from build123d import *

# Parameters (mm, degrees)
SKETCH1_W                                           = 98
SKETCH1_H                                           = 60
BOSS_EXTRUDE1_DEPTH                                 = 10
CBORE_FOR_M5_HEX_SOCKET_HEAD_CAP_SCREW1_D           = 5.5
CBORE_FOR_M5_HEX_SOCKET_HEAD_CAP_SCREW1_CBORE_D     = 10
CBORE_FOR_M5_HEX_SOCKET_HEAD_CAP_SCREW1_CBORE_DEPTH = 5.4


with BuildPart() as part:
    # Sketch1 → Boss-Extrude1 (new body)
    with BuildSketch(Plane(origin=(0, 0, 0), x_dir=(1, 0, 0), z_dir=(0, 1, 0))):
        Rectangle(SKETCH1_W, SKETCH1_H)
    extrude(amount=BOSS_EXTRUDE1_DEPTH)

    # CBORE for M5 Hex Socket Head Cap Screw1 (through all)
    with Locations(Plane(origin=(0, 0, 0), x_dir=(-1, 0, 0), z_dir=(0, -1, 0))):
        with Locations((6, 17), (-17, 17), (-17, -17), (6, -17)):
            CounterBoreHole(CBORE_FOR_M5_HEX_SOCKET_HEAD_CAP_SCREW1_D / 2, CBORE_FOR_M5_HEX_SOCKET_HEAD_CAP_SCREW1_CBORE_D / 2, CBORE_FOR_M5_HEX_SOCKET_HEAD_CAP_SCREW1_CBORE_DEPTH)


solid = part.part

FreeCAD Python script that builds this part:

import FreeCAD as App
import Part
import Sketcher
Q = App.Units.Quantity


def add_polygon(sketch, points):
    """Adds a closed chain of lines whose ends are joined by coincident constraints."""
    first, n = sketch.GeometryCount, len(points)
    for a, b in zip(points, points[1:] + points[:1]):
        sketch.addGeometry(Part.LineSegment(App.Vector(*a, 0), App.Vector(*b, 0)), False)
    for i in range(n):
        sketch.addConstraint(Sketcher.Constraint("Coincident", first + i, 2, first + (i + 1) % n, 1))

doc = App.newDocument("Part")
params = doc.addObject("Spreadsheet::Sheet", "Params")
for row, (alias, value) in enumerate([
    ("sketch1_width", "98 mm"),
    ("sketch1_height", "60 mm"),
    ("pad1_length", "10 mm"),
    ("sketch2_diameter", "5.5 mm"),
    ("hole_diameter", "5.5 mm"),
    ("hole_cbore_diameter", "10 mm"),
    ("hole_cbore_depth", "5.4 mm"),
], start=1):
    params.set(f"A{row}", alias)
    params.set(f"B{row}", "=" + value)
    params.setAlias(f"B{row}", alias)

body = doc.addObject("PartDesign::Body", "Body")

sketch1 = body.newObject("Sketcher::SketchObject", "Sketch")
sketch1.AttachmentSupport = (doc.getObject("XZ_Plane"), [""])
sketch1.MapMode = "FlatFace"
add_polygon(sketch1, [(-49, -30), (-49, 30), (49, 30), (49, -30)])
sketch1.addConstraint(Sketcher.Constraint("Vertical", 0))
sketch1.addConstraint(Sketcher.Constraint("Horizontal", 1))
sketch1.addConstraint(Sketcher.Constraint("Vertical", 2))
sketch1.addConstraint(Sketcher.Constraint("Horizontal", 3))
sketch1.addConstraint(Sketcher.Constraint("Symmetric", 0, 2, 2, 2, -1, 1))
sketch1.addConstraint(Sketcher.Constraint("DistanceX", 1, 1, 1, 2, Q("98 mm")))
sketch1.addConstraint(Sketcher.Constraint("DistanceY", 0, 1, 0, 2, Q("60 mm")))
sketch1.setExpression("Constraints[9]", "Params.sketch1_width")
sketch1.setExpression("Constraints[10]", "Params.sketch1_height")
pad1 = body.newObject("PartDesign::Pad", "Pad")
pad1.Profile = sketch1
pad1.setExpression("Length", "Params.pad1_length")
pad1.Reversed = True

sketch2 = body.newObject("Sketcher::SketchObject", "Sketch001")
sketch2.AttachmentSupport = (doc.getObject("XZ_Plane"), [""])
sketch2.MapMode = "FlatFace"
sketch2.addGeometry(Part.Circle(App.Vector(-6, -17, 0), App.Vector(0, 0, 1), 2.75), False)
sketch2.addGeometry(Part.Circle(App.Vector(17, -17, 0), App.Vector(0, 0, 1), 2.75), False)
sketch2.addGeometry(Part.Circle(App.Vector(17, 17, 0), App.Vector(0, 0, 1), 2.75), False)
sketch2.addGeometry(Part.Circle(App.Vector(-6, 17, 0), App.Vector(0, 0, 1), 2.75), False)
sketch2.addConstraint(Sketcher.Constraint("Equal", 0, 1))
sketch2.addConstraint(Sketcher.Constraint("Equal", 1, 2))
sketch2.addConstraint(Sketcher.Constraint("Equal", 2, 3))
sketch2.addConstraint(Sketcher.Constraint("Symmetric", 1, 3, 2, 3, -1))
sketch2.addConstraint(Sketcher.Constraint("Symmetric", 0, 3, 3, 3, -1))
sketch2.addConstraint(Sketcher.Constraint("Horizontal", 0, 3, 1, 3))
sketch2.addConstraint(Sketcher.Constraint("Diameter", 0, Q("5.5 mm")))
sketch2.addConstraint(Sketcher.Constraint("DistanceX", 0, 3, -1, 1, Q("6 mm")))
sketch2.addConstraint(Sketcher.Constraint("DistanceY", 0, 3, -1, 1, Q("17 mm")))
sketch2.addConstraint(Sketcher.Constraint("DistanceX", -1, 1, 1, 3, Q("17 mm")))
sketch2.setExpression("Constraints[6]", "Params.sketch2_diameter")
doc.recompute()
hole = body.newObject("PartDesign::Hole", "Hole")
hole.Profile = sketch2
hole.ThreadType = "None"
hole.setExpression("Diameter", "Params.hole_diameter")
hole.DepthType = "ThroughAll"
hole.HoleCutType = "Counterbore"
hole.setExpression("HoleCutDiameter", "Params.hole_cbore_diameter")
hole.setExpression("HoleCutDepth", "Params.hole_cbore_depth")

doc.recompute()
